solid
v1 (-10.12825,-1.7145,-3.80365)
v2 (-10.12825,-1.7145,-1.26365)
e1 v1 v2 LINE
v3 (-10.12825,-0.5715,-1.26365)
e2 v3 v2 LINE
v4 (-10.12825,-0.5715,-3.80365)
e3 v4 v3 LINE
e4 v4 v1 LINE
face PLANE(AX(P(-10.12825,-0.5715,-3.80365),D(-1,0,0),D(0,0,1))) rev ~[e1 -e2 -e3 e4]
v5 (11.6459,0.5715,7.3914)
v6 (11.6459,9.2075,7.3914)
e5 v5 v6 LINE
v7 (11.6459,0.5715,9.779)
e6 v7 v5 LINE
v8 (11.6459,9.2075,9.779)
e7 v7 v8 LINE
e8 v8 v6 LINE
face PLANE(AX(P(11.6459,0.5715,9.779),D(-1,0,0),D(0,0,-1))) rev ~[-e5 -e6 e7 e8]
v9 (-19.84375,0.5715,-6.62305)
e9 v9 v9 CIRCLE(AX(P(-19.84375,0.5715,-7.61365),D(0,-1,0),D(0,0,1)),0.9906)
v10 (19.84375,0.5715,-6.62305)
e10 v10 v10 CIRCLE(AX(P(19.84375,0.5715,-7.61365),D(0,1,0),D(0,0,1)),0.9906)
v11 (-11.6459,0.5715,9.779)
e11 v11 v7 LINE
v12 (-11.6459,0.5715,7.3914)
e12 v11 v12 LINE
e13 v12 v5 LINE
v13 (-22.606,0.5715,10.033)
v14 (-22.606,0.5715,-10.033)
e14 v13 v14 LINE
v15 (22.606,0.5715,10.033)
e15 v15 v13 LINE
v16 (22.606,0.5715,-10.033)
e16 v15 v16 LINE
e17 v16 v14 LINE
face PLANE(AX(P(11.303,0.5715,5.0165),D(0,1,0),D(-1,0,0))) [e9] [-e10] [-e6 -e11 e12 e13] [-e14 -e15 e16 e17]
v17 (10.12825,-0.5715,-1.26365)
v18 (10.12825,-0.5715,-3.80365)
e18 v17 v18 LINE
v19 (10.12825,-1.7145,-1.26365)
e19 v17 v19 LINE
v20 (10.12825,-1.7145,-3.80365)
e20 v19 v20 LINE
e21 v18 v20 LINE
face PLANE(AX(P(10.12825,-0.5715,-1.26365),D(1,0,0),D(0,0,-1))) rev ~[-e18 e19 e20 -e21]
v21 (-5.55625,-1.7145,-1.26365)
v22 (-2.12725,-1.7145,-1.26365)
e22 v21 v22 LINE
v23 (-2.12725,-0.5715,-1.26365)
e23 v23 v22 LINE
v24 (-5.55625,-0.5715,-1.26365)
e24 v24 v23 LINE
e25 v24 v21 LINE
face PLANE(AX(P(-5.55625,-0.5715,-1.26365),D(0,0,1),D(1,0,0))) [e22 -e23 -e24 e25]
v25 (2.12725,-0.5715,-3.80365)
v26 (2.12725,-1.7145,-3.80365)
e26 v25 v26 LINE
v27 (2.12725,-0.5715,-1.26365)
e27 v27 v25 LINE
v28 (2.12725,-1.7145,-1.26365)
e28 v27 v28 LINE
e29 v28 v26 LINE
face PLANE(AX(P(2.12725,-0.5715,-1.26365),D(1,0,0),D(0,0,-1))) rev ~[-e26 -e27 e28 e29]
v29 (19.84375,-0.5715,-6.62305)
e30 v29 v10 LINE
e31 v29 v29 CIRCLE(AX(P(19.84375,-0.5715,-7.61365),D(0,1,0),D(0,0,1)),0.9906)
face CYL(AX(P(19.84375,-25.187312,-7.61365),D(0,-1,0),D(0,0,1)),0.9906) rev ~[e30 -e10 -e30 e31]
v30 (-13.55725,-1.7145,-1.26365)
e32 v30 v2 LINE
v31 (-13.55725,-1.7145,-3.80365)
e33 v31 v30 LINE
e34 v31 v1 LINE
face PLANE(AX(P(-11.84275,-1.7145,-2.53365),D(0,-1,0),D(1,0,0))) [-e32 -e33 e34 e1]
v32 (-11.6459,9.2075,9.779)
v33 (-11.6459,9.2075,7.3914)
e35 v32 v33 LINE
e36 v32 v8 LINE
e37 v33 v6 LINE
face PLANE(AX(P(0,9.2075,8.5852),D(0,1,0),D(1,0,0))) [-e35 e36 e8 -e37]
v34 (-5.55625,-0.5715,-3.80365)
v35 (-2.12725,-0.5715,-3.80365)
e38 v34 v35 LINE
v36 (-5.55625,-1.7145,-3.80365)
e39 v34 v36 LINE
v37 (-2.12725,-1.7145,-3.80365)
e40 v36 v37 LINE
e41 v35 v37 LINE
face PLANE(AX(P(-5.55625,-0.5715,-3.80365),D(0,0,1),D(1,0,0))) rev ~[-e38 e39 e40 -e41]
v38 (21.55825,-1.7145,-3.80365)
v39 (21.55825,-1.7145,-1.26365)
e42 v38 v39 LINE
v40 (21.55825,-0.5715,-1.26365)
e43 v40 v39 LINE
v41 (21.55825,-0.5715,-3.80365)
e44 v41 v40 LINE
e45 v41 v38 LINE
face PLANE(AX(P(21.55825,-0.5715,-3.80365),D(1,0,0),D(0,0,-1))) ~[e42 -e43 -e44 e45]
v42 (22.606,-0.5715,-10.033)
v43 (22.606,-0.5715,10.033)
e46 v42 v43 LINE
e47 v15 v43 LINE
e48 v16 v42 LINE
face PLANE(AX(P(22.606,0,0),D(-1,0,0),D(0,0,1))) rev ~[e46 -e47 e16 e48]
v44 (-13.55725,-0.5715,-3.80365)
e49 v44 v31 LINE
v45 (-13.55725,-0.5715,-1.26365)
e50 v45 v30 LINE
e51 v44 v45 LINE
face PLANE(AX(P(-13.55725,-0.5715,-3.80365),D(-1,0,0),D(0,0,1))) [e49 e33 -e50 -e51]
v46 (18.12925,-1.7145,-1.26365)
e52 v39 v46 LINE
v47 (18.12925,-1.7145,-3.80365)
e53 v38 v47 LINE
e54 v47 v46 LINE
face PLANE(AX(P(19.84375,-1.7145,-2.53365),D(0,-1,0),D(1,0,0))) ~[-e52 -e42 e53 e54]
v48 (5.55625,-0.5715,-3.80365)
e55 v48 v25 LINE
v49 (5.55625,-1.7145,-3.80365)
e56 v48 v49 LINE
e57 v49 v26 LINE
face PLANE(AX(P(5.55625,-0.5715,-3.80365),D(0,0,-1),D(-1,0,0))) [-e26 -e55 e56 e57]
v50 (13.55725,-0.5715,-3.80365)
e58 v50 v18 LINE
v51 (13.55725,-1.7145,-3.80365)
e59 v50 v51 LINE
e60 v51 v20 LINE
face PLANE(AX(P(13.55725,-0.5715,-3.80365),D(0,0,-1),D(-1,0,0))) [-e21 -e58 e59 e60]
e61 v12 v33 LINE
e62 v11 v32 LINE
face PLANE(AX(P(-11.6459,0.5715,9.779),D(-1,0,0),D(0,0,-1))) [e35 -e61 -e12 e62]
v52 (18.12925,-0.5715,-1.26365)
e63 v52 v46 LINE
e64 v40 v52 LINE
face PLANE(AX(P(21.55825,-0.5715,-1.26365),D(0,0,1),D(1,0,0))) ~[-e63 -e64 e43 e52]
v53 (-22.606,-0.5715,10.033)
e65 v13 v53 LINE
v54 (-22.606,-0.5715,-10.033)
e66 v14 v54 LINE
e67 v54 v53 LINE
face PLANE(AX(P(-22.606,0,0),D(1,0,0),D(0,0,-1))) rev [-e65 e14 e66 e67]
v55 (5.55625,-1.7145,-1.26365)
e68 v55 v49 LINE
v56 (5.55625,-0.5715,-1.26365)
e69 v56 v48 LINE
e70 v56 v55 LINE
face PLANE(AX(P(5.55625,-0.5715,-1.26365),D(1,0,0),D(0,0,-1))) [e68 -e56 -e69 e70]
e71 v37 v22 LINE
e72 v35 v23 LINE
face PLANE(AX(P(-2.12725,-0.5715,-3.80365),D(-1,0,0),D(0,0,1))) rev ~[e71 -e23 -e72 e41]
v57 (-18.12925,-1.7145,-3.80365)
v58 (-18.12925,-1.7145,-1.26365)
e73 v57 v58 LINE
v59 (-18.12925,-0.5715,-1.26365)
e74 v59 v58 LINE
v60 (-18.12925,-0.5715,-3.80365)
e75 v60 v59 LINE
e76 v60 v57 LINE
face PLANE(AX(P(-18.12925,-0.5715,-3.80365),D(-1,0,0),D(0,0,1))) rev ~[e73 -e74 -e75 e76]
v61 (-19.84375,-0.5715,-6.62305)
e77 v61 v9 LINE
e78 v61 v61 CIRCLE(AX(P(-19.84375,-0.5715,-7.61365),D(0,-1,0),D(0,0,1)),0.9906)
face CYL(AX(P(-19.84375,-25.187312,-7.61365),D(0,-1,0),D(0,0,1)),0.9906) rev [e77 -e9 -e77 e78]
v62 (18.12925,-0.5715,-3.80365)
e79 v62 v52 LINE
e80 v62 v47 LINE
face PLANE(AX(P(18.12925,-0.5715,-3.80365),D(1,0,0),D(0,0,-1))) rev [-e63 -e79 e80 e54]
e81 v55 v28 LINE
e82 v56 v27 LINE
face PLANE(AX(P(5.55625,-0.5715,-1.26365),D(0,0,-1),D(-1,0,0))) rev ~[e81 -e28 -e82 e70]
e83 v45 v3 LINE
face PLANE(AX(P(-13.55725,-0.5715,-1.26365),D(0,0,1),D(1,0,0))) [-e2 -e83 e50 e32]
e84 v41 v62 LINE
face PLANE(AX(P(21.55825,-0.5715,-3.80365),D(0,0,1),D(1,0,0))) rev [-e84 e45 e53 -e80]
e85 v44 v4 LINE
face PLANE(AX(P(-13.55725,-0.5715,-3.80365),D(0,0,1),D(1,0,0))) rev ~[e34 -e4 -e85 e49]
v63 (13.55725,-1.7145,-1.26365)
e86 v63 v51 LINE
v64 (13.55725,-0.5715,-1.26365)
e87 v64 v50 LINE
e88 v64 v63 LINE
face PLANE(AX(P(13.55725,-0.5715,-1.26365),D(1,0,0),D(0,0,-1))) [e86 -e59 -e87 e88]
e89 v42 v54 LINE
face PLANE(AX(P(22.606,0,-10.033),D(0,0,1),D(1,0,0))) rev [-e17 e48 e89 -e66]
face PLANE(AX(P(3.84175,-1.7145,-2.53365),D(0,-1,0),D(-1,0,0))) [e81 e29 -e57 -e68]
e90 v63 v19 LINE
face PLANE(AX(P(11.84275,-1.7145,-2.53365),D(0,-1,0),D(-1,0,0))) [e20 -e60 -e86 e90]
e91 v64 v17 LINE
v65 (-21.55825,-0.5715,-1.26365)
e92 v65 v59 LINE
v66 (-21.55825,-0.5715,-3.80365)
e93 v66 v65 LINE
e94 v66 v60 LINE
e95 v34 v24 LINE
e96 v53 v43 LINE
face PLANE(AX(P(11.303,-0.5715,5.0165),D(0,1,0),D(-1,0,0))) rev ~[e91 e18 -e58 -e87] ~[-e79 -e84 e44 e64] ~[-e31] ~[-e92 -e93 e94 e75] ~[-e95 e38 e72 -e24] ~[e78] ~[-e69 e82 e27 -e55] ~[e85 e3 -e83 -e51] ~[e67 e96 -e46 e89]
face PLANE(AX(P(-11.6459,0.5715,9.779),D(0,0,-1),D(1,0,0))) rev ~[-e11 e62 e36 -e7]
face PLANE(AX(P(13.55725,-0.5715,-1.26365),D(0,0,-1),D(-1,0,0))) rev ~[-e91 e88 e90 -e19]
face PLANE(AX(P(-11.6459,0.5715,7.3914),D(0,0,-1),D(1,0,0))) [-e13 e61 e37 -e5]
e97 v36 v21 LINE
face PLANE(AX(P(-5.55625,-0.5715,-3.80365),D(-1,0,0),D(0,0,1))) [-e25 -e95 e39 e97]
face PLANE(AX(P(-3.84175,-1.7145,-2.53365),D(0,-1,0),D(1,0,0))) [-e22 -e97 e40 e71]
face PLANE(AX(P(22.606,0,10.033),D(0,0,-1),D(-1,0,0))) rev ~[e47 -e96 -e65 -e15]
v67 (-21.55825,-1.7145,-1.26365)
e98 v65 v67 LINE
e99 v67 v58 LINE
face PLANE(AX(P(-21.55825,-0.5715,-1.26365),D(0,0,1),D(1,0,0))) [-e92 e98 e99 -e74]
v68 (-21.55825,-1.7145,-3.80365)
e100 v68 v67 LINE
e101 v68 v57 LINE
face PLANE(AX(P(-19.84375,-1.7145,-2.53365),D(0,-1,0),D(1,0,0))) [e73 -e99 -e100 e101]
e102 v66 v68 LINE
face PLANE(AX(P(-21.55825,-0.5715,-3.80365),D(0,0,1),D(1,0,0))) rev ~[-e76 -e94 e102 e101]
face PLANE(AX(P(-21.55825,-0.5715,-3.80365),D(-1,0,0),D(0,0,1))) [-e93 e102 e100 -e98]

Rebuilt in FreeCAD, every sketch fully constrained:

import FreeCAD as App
import Part
import Sketcher
from FreeCAD import Vector
Q = App.Units.Quantity


def add_polygon(sketch, points):
    """Adds a closed chain of lines whose ends are joined by coincident constraints."""
    first, n = sketch.GeometryCount, len(points)
    for a, b in zip(points, points[1:] + points[:1]):
        sketch.addGeometry(Part.LineSegment(App.Vector(*a, 0), App.Vector(*b, 0)), False)
    for i in range(n):
        sketch.addConstraint(Sketcher.Constraint("Coincident", first + i, 2, first + (i + 1) % n, 1))

doc = App.newDocument("Part")
body = doc.addObject("PartDesign::Body", "Body")

# Sketch on XZ plane
sketch1 = body.newObject("Sketcher::SketchObject", "Sketch")
sketch1.AttachmentSupport = (doc.getObject("XZ_Plane"), [""])
sketch1.MapMode = "FlatFace"
add_polygon(sketch1, [(-23, -10), (-23, 0), (0, 0), (0, -10)])  # lines 0-3
sketch1.addConstraint(Sketcher.Constraint("Vertical", 0))
sketch1.addConstraint(Sketcher.Constraint("Horizontal", 1))
sketch1.addConstraint(Sketcher.Constraint("Vertical", 2))
sketch1.addConstraint(Sketcher.Constraint("Horizontal", 3))
sketch1.addConstraint(Sketcher.Constraint("Coincident", 1, 2, -1, 1))
sketch1.addConstraint(Sketcher.Constraint("DistanceX", 1, 1, 1, 2, Q("0.89 in")))
sketch1.addConstraint(Sketcher.Constraint("DistanceY", 0, 1, 0, 2, Q("0.395 in")))
pad1 = body.newObject("PartDesign::Pad", "Pad")
pad1.Profile = sketch1
pad1.Length = Q("0.045 in")
pad1.Midplane = True
doc.recompute()

mirrored = body.newObject("PartDesign::Mirrored", "Mirrored")
mirrored.Originals = [pad1]
mirrored.MirrorPlane = (doc.getObject("XY_Plane"), [""])
body.Tip = mirrored

# Sketch on XZ plane
sketch2 = body.newObject("Sketcher::SketchObject", "Sketch001")
sketch2.AttachmentSupport = (doc.getObject("XZ_Plane"), [""])
sketch2.MapMode = "FlatFace"
sketch2.AttachmentOffset = App.Placement(Vector(0, 0, -0.0225 * 25.4), App.Rotation())
sketch2.addGeometry(Part.Circle(Vector(-19.8, -7.6, 0), Vector(0, 0, 1), 1), False)
sketch2.addConstraint(Sketcher.Constraint("Diameter", 0, Q("0.078 in")))
sketch2.addConstraint(Sketcher.Constraint("DistanceX", 0, 3, -1, 1, Q("0.78125 in")))
sketch2.addConstraint(Sketcher.Constraint("DistanceY", 0, 3, -1, 1, 7.61365))
pocket1 = body.newObject("PartDesign::Pocket", "Pocket")
pocket1.Profile = sketch2
pocket1.Type = "ThroughAll"
pocket1.Midplane = True
body2 = doc.addObject("PartDesign::Body", "Body001")
doc.recompute()

body2.BaseFeature = body
doc.recompute()

mirroring = doc.addObject("Part::Mirroring", "Mirroring")
mirroring.Source = body
mirroring.Base = Vector(0, 0, 0)
mirroring.Normal = Vector(1, 0, 0)
body3 = doc.addObject("PartDesign::Body", "Body002")
body3.BaseFeature = mirroring
boolean = body2.newObject("PartDesign::Boolean", "Boolean")
boolean.Type = "Fuse"
boolean.addObjects([body3])
doc.recompute()

# Sketch on XZ plane
sketch3 = body2.newObject("Sketcher::SketchObject", "Sketch002")
sketch3.AttachmentSupport = (doc.getObject("XZ_Plane001"), [""])
sketch3.MapMode = "FlatFace"
sketch3.AttachmentOffset = App.Placement(Vector(0, 0, -0.0225 * 25.4), App.Rotation())
add_polygon(sketch3, [(-11.6, 7.4), (-11.6, 9.8), (11.6, 9.8), (11.6, 7.4)])  # lines 0-3
sketch3.addConstraint(Sketcher.Constraint("Vertical", 0))
sketch3.addConstraint(Sketcher.Constraint("Horizontal", 1))
sketch3.addConstraint(Sketcher.Constraint("Vertical", 2))
sketch3.addConstraint(Sketcher.Constraint("Horizontal", 3))
sketch3.addConstraint(Sketcher.Constraint("DistanceX", 1, 1, 1, 2, Q("0.917 in")))
sketch3.addConstraint(Sketcher.Constraint("DistanceY", 0, 1, 0, 2, Q("0.094 in")))
sketch3.addConstraint(Sketcher.Constraint("DistanceY", -1, 1, 0, 2, Q("0.385 in")))
sketch3.addConstraint(Sketcher.Constraint("DistanceX", 0, 2, -1, 1, Q("0.4585 in")))
pad2 = body2.newObject("PartDesign::Pad", "Pad001")
pad2.Profile = sketch3
pad2.Length = Q("0.34 in")
pad2.Reversed = True

# Sketch on XZ plane
sketch4 = body2.newObject("Sketcher::SketchObject", "Sketch003")
sketch4.AttachmentSupport = (doc.getObject("XZ_Plane001"), [""])
sketch4.MapMode = "FlatFace"
sketch4.AttachmentOffset = App.Placement(Vector(0, 0, 0.0225 * 25.4), App.Rotation())
add_polygon(sketch4, [(-21.6, -1.3), (-21.6, -3.8), (-18.1, -3.8), (-18.1, -1.3)])  # lines 0-3
sketch4.addConstraint(Sketcher.Constraint("Vertical", 0))
sketch4.addConstraint(Sketcher.Constraint("Horizontal", 1))
sketch4.addConstraint(Sketcher.Constraint("Vertical", 2))
sketch4.addConstraint(Sketcher.Constraint("Horizontal", 3))
sketch4.addConstraint(Sketcher.Constraint("DistanceY", 0, 2, 0, 1, Q("0.1 in")))
sketch4.addConstraint(Sketcher.Constraint("DistanceX", 1, 1, 1, 2, Q("0.135 in")))
sketch4.addConstraint(Sketcher.Constraint("DistanceX", 0, 2, -1, 1, 21.55825))
sketch4.addConstraint(Sketcher.Constraint("DistanceY", 0, 2, -1, 1, 3.80365))
pad3 = body2.newObject("PartDesign::Pad", "Pad002")
pad3.Profile = sketch4
pad3.Length = Q("0.045 in")
doc.recompute()

linearpattern = body2.newObject("PartDesign::LinearPattern", "LinearPattern")
linearpattern.Originals = [pad3]
linearpattern.Direction = (doc.getObject("X_Axis001"), [""])
linearpattern.Mode = "offset"
linearpattern.Offset = Q("0.315 in")
linearpattern.Occurrences = 3
body2.Tip = linearpattern
doc.recompute()

mirrored2 = body2.newObject("PartDesign::Mirrored", "Mirrored001")
mirrored2.Originals = [pad3]
mirrored2.MirrorPlane = (doc.getObject("YZ_Plane001"), [""])
body2.Tip = mirrored2

# Sketch on XZ plane
sketch5 = body2.newObject("Sketcher::SketchObject", "Sketch004")
sketch5.AttachmentSupport = (doc.getObject("XZ_Plane001"), [""])
sketch5.MapMode = "FlatFace"
sketch5.AttachmentOffset = App.Placement(Vector(0, 0, 0.0225 * 25.4), App.Rotation())
add_polygon(sketch5, [(13.6, -3.8), (13.6, -1.3), (10.1, -1.3), (10.1, -3.8)])  # lines 0-3
sketch5.addConstraint(Sketcher.Constraint("Vertical", 0))
sketch5.addConstraint(Sketcher.Constraint("Horizontal", 1))
sketch5.addConstraint(Sketcher.Constraint("Vertical", 2))
sketch5.addConstraint(Sketcher.Constraint("Horizontal", 3))
sketch5.addConstraint(Sketcher.Constraint("DistanceY", 0, 1, 0, 2, Q("0.1 in")))
sketch5.addConstraint(Sketcher.Constraint("DistanceX", 1, 2, 1, 1, Q("0.135 in")))
sketch5.addConstraint(Sketcher.Constraint("DistanceX", -1, 1, 0, 2, 13.55725))
sketch5.addConstraint(Sketcher.Constraint("DistanceY", 0, 2, -1, 1, 1.26365))
pad4 = body2.newObject("PartDesign::Pad", "Pad003")
pad4.Profile = sketch5
pad4.Length = Q("0.045 in")

# Sketch on XZ plane
sketch6 = body2.newObject("Sketcher::SketchObject", "Sketch005")
sketch6.AttachmentSupport = (doc.getObject("XZ_Plane001"), [""])
sketch6.MapMode = "FlatFace"
sketch6.AttachmentOffset = App.Placement(Vector(0, 0, 0.0225 * 25.4), App.Rotation())
add_polygon(sketch6, [(5.6, -3.8), (5.6, -1.3), (2.1, -1.3), (2.1, -3.8)])  # lines 0-3
sketch6.addConstraint(Sketcher.Constraint("Vertical", 0))
sketch6.addConstraint(Sketcher.Constraint("Horizontal", 1))
sketch6.addConstraint(Sketcher.Constraint("Vertical", 2))
sketch6.addConstraint(Sketcher.Constraint("Horizontal", 3))
sketch6.addConstraint(Sketcher.Constraint("DistanceY", 0, 1, 0, 2, Q("0.1 in")))
sketch6.addConstraint(Sketcher.Constraint("DistanceX", 1, 2, 1, 1, Q("0.135 in")))
sketch6.addConstraint(Sketcher.Constraint("DistanceX", -1, 1, 0, 2, Q("0.21875 in")))
sketch6.addConstraint(Sketcher.Constraint("DistanceY", 0, 2, -1, 1, 1.26365))
pad5 = body2.newObject("PartDesign::Pad", "Pad004")
pad5.Profile = sketch6
pad5.Length = Q("0.045 in")
mirroring.Visibility = False

doc.recompute()
